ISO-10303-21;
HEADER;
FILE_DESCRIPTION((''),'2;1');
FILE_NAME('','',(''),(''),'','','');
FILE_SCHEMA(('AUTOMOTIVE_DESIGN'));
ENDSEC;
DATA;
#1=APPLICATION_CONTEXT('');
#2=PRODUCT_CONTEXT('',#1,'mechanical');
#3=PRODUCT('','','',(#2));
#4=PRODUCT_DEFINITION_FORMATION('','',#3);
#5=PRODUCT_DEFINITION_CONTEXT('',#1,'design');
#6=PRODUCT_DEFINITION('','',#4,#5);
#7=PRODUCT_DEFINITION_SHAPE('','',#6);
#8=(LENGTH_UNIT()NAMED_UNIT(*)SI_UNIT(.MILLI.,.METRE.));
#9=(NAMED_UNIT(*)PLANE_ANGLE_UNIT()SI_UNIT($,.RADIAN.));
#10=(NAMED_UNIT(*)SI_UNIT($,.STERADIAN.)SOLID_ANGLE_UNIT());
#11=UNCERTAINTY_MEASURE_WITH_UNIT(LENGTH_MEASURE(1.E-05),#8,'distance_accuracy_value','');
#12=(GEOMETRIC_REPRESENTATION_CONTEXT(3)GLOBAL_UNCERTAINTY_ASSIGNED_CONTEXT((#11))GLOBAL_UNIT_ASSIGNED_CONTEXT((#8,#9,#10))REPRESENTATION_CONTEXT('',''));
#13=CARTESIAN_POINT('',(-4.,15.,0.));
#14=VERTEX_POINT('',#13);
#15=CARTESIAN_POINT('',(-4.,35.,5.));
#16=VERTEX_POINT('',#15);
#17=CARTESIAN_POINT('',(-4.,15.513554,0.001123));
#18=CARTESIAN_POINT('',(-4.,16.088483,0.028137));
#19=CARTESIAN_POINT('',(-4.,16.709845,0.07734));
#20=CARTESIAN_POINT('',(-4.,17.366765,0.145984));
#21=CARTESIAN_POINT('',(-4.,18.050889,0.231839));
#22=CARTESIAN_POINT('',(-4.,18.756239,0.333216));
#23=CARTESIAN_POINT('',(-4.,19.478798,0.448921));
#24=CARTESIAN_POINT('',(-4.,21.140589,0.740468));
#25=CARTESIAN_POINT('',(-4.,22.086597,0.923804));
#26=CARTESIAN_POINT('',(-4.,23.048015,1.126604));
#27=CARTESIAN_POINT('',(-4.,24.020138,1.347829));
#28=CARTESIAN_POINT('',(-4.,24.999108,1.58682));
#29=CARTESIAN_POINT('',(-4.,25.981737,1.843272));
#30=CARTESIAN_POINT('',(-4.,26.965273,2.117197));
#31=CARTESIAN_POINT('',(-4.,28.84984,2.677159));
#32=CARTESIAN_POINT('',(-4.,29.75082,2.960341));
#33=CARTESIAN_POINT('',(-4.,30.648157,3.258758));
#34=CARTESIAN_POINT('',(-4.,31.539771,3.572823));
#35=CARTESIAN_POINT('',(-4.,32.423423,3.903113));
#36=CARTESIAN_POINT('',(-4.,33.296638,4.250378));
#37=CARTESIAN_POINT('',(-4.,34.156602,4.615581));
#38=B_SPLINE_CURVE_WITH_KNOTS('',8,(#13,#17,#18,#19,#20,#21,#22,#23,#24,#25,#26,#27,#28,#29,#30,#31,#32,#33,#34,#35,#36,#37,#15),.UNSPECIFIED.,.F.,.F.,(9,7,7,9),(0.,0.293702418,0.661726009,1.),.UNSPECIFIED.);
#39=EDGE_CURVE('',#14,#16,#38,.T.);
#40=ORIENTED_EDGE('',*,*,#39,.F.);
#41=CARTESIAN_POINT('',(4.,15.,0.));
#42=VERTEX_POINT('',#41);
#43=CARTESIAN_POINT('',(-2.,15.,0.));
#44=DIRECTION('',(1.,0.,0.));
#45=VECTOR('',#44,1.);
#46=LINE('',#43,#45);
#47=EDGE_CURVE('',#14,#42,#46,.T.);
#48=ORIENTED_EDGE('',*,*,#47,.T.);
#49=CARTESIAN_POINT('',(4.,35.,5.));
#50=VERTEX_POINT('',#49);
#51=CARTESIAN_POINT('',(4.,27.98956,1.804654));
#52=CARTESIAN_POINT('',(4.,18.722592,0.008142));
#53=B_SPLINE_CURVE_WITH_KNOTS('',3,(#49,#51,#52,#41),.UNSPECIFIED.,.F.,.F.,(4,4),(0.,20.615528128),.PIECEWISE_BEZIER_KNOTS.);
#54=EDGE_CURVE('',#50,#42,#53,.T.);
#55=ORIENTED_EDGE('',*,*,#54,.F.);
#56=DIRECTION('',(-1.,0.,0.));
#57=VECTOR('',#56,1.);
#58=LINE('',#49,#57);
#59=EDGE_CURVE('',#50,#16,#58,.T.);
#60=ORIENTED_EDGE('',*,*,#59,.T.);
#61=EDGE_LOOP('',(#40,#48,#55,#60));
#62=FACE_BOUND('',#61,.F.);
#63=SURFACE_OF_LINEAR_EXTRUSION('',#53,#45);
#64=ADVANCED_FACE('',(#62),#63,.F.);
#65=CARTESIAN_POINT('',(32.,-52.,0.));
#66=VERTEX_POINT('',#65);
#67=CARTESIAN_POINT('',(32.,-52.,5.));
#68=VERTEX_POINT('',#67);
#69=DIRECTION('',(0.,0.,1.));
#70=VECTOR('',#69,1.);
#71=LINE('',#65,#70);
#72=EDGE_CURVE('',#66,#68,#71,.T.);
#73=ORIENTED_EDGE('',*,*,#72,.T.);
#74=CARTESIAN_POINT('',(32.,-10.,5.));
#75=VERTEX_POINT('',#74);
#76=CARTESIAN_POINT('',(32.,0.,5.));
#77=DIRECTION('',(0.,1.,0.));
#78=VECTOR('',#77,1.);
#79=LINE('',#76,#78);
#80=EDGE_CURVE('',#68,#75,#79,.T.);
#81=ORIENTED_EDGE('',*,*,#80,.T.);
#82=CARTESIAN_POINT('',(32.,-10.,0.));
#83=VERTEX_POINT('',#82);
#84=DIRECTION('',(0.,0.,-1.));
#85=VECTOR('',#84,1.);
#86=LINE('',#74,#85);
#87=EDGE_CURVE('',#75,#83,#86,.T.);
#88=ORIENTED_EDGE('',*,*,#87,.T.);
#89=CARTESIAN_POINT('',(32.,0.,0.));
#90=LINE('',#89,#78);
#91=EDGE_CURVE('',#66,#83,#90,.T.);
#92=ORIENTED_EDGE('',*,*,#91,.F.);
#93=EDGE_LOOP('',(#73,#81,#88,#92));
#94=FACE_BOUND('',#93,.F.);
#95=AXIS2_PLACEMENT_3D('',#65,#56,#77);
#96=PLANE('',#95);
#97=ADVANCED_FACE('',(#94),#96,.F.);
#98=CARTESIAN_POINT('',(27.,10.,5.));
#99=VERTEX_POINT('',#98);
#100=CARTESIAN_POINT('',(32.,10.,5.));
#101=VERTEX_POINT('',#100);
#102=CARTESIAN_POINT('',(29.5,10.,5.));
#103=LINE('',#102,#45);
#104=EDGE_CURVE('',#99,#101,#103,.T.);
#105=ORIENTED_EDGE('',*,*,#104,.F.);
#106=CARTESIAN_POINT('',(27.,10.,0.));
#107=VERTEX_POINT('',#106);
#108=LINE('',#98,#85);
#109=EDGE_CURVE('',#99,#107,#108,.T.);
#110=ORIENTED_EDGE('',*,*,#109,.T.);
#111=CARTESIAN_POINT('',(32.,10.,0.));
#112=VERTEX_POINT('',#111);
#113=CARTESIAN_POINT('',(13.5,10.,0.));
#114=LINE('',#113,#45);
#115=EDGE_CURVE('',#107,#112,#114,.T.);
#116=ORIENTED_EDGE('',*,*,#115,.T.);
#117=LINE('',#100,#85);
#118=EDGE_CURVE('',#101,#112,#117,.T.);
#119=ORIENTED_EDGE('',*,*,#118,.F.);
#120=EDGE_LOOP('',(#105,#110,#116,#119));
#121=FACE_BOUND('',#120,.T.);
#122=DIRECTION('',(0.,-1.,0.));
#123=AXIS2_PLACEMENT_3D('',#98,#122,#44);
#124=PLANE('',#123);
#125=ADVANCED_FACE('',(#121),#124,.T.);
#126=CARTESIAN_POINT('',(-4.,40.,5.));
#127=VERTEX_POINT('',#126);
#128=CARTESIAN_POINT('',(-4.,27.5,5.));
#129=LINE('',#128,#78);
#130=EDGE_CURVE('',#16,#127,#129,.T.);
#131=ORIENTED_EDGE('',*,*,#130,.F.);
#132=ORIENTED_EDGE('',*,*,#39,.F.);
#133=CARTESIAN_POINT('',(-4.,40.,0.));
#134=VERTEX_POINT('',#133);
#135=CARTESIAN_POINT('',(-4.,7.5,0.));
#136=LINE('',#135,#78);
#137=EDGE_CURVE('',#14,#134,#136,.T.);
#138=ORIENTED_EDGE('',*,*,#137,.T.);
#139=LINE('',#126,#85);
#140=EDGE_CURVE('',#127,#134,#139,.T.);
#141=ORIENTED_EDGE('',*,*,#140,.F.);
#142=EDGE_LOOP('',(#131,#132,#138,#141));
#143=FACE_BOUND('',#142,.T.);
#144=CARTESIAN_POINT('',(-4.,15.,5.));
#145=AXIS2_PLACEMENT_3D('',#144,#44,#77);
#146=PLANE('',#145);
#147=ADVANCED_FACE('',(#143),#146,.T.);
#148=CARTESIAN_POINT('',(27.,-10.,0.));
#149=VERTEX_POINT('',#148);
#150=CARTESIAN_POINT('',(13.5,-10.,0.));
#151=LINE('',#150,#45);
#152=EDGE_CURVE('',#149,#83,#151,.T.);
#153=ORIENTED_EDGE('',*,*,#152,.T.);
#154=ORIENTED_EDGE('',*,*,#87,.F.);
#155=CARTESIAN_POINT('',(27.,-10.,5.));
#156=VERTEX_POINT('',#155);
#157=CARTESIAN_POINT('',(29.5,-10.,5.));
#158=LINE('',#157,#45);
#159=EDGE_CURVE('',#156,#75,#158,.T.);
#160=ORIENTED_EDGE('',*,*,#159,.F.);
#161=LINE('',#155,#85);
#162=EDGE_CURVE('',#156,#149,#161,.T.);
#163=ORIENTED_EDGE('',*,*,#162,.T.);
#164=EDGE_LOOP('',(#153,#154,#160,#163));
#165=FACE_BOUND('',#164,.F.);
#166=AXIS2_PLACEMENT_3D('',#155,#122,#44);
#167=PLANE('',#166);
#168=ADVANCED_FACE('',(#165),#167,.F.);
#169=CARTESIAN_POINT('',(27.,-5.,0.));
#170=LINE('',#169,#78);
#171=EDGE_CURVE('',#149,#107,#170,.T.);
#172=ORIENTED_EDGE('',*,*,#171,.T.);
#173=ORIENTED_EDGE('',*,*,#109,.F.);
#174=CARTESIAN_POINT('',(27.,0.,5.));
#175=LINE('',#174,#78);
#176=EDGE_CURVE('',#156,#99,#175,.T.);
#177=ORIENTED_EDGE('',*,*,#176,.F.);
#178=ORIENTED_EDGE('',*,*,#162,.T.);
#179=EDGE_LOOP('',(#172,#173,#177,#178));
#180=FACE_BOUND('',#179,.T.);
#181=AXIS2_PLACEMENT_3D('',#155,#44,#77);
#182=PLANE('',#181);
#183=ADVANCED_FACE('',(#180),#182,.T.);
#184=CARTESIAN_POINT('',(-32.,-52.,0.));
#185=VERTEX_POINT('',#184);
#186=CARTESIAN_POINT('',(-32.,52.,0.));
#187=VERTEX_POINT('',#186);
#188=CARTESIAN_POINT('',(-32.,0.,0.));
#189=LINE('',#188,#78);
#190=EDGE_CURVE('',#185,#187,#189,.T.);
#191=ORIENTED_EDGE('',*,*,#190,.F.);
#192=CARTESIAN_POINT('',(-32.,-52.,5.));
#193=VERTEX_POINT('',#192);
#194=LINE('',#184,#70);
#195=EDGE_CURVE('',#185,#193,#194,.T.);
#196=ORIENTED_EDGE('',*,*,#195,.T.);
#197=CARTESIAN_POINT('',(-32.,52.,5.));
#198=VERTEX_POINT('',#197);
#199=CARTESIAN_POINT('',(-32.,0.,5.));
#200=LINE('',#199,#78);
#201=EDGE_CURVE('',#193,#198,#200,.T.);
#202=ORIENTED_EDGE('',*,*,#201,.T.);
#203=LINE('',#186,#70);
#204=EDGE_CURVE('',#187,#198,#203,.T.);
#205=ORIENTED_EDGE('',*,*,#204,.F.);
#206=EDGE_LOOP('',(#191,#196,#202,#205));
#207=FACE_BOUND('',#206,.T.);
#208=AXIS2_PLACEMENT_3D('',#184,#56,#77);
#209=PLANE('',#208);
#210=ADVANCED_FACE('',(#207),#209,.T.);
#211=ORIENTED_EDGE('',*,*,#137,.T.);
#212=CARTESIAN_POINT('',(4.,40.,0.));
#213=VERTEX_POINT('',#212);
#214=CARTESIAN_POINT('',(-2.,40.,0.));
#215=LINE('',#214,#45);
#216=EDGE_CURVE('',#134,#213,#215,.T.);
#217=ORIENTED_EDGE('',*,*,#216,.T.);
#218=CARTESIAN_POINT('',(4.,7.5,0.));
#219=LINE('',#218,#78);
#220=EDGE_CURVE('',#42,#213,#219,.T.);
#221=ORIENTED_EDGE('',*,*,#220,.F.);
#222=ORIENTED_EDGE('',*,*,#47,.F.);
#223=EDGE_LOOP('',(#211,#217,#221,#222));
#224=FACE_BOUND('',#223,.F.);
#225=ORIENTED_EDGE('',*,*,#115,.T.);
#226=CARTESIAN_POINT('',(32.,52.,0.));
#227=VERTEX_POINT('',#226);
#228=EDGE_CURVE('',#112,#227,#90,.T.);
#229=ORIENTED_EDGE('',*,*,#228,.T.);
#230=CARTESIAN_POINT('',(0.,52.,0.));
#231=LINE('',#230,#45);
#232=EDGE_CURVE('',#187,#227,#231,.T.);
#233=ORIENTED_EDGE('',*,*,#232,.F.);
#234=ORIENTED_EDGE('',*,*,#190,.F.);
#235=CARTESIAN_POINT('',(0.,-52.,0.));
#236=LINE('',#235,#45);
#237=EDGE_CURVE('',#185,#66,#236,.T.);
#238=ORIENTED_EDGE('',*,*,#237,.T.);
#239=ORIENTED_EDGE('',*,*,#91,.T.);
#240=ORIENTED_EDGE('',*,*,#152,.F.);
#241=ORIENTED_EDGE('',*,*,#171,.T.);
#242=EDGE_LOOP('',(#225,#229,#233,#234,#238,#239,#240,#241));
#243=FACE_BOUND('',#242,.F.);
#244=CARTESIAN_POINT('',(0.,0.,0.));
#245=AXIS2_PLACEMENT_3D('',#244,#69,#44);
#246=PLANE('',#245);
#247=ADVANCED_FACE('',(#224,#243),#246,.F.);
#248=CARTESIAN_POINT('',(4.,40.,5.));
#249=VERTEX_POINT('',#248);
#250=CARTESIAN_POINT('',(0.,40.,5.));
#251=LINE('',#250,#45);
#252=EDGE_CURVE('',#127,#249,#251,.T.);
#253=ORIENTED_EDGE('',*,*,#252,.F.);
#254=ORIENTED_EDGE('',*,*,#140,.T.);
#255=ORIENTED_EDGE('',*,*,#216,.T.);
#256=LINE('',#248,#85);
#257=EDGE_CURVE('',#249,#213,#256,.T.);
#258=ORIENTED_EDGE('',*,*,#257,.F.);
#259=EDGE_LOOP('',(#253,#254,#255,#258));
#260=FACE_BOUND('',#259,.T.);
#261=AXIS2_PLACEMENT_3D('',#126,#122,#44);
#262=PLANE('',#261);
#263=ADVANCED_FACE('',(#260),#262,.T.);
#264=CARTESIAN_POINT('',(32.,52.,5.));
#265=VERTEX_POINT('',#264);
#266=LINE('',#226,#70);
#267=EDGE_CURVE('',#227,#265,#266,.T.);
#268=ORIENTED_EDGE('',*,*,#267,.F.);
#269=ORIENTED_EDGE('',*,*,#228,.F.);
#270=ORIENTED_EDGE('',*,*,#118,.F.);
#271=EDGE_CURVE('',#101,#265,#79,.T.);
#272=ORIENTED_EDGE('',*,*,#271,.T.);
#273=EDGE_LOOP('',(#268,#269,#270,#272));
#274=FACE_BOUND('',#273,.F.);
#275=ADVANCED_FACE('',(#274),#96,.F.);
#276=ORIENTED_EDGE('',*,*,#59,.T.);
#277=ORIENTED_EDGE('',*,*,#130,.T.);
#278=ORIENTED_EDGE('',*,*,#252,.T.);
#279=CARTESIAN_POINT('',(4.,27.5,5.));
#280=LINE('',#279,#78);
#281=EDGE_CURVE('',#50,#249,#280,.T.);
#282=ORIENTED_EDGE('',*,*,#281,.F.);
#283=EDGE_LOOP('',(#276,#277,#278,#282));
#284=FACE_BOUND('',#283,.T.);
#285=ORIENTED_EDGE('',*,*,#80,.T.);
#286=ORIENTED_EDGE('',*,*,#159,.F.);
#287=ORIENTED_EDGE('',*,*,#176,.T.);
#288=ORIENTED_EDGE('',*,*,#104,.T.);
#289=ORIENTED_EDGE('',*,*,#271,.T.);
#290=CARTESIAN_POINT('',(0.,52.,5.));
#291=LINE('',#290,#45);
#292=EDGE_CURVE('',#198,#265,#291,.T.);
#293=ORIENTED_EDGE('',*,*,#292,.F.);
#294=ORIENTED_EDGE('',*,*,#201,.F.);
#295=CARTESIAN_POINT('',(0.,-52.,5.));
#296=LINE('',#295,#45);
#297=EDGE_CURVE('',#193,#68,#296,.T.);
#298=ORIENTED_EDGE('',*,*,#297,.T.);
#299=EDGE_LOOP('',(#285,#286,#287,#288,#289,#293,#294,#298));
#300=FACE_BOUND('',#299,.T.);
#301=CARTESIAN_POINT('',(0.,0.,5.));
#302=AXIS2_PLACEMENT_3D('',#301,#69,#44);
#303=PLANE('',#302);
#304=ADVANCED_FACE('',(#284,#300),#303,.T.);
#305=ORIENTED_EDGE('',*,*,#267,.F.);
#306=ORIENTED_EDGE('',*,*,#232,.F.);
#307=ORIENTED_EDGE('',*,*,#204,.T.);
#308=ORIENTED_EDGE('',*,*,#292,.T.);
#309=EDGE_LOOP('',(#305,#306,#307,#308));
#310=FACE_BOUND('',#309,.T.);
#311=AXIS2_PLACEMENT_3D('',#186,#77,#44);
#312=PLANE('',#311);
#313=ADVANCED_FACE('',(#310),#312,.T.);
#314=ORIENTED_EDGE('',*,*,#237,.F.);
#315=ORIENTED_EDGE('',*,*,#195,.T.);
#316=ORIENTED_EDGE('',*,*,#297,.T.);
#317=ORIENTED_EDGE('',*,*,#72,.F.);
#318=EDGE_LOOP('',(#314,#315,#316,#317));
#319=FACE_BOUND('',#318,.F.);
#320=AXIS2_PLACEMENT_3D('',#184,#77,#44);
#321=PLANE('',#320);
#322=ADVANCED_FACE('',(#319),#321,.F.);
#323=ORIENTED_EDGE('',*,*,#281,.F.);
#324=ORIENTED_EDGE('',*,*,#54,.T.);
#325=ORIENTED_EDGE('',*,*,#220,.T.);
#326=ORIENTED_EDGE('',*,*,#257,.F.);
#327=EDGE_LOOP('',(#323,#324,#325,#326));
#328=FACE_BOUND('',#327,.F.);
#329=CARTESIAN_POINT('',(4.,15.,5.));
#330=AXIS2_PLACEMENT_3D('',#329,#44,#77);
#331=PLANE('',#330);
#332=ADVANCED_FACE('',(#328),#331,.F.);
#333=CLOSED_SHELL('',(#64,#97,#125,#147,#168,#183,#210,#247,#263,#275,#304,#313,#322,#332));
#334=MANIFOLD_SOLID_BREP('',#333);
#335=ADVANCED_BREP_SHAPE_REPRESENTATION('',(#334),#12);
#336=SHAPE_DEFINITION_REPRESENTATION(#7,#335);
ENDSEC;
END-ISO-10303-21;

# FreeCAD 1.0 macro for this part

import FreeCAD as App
import Part
import Sketcher

V = App.Vector
Q = App.Units.Quantity


def add_polygon(sketch, points):
    """Adds a closed chain of lines whose ends are joined by coincident constraints."""
    first, n = sketch.GeometryCount, len(points)
    for a, b in zip(points, points[1:] + points[:1]):
        sketch.addGeometry(Part.LineSegment(App.Vector(*a, 0), App.Vector(*b, 0)), False)
    for i in range(n):
        sketch.addConstraint(Sketcher.Constraint("Coincident", first + i, 2, first + (i + 1) % n, 1))

doc = App.newDocument("Part")
body = doc.addObject("PartDesign::Body", "Body")

# Sketch on XY plane
sketch1 = doc.addObject("Sketcher::SketchObject", "Sketch")
body.addObject(sketch1)
sketch1.AttachmentSupport = (doc.XY_Plane, [""])
sketch1.MapMode = "FlatFace"
add_polygon(sketch1, [(-32, 52), (-32, -52), (32, -52), (32, 52)])  # lines 0-3
sketch1.addConstraint(Sketcher.Constraint("Vertical", 0))
sketch1.addConstraint(Sketcher.Constraint("Horizontal", 1))
sketch1.addConstraint(Sketcher.Constraint("Vertical", 2))
sketch1.addConstraint(Sketcher.Constraint("Horizontal", 3))
sketch1.addConstraint(Sketcher.Constraint("Symmetric", 0, 2, 2, 2, -1, 1))
sketch1.addConstraint(Sketcher.Constraint("DistanceX", 1, 1, 1, 2, Q("64 mm")))
sketch1.addConstraint(Sketcher.Constraint("DistanceY", 0, 2, 0, 1, Q("104 mm")))
pad1 = doc.addObject("PartDesign::Pad", "Pad")
body.addObject(pad1)
pad1.Profile = sketch1
pad1.Length = 5

# Sketch on XY plane
sketch2 = doc.addObject("Sketcher::SketchObject", "Sketch001")
body.addObject(sketch2)
sketch2.AttachmentSupport = (doc.XY_Plane, [""])
sketch2.MapMode = "FlatFace"
sketch2.AttachmentOffset = App.Placement(V(0, 0, 5), App.Rotation())
add_polygon(sketch2, [(27, 10), (27, -10), (32, -10), (32, 10)])  # lines 0-3
sketch2.addConstraint(Sketcher.Constraint("Vertical", 0))
sketch2.addConstraint(Sketcher.Constraint("Horizontal", 1))
sketch2.addConstraint(Sketcher.Constraint("Vertical", 2))
sketch2.addConstraint(Sketcher.Constraint("Horizontal", 3))
sketch2.addConstraint(Sketcher.Constraint("DistanceX", 1, 1, 1, 2, Q("5 mm")))
sketch2.addConstraint(Sketcher.Constraint("DistanceY", 0, 2, 0, 1, Q("20 mm")))
sketch2.addConstraint(Sketcher.Constraint("DistanceX", -1, 1, 0, 2, Q("27 mm")))
sketch2.addConstraint(Sketcher.Constraint("DistanceY", 0, 2, -1, 1, Q("10 mm")))
pocket1 = doc.addObject("PartDesign::Pocket", "Pocket")
body.addObject(pocket1)
pocket1.Profile = sketch2
pocket1.Length = 25

# Sketch on XY plane
sketch3 = doc.addObject("Sketcher::SketchObject", "Sketch002")
body.addObject(sketch3)
sketch3.AttachmentSupport = (doc.XY_Plane, [""])
sketch3.MapMode = "FlatFace"
sketch3.AttachmentOffset = App.Placement(V(0, 0, 5), App.Rotation())
add_polygon(sketch3, [(-4, 40), (-4, 15), (4, 15), (4, 40)])  # lines 0-3
sketch3.addConstraint(Sketcher.Constraint("Vertical", 0))
sketch3.addConstraint(Sketcher.Constraint("Horizontal", 1))
sketch3.addConstraint(Sketcher.Constraint("Vertical", 2))
sketch3.addConstraint(Sketcher.Constraint("Horizontal", 3))
sketch3.addConstraint(Sketcher.Constraint("DistanceX", 1, 1, 1, 2, Q("8 mm")))
sketch3.addConstraint(Sketcher.Constraint("DistanceY", 0, 2, 0, 1, Q("25 mm")))
sketch3.addConstraint(Sketcher.Constraint("DistanceX", 0, 2, -1, 1, Q("4 mm")))
sketch3.addConstraint(Sketcher.Constraint("DistanceY", -1, 1, 0, 2, Q("15 mm")))
pocket2 = doc.addObject("PartDesign::Pocket", "Pocket001")
body.addObject(pocket2)
pocket2.Profile = sketch3
pocket2.Length = 25

# Sketch on YZ plane
sketch4 = doc.addObject("Sketcher::SketchObject", "Sketch003")
body.addObject(sketch4)
sketch4.AttachmentSupport = (doc.YZ_Plane, [""])
sketch4.MapMode = "FlatFace"
sketch4.AttachmentOffset = App.Placement(V(0, 0, 4), App.Rotation())
sketch4.addGeometry(Part.LineSegment(V(15, 5, 0), V(35, 5, 0)), False)
sketch4.addGeometry(Part.BSplineCurve([V(35, 5, 0), V(27.98956, 1.804654, 0), V(18.722592, 0.008142, 0), V(15, 0, 0)], [4, 4], [0, 20.615528128], False, 3, [1, 1, 1, 1], False), False)
sketch4.addGeometry(Part.LineSegment(V(15, 0, 0), V(15, 5, 0)), False)
sketch4.addConstraint(Sketcher.Constraint("Block", 1))
sketch4.addConstraint(Sketcher.Constraint("Coincident", 0, 2, 1, 1))
sketch4.addConstraint(Sketcher.Constraint("Coincident", 1, 2, 2, 1))
sketch4.addConstraint(Sketcher.Constraint("Coincident", 2, 2, 0, 1))
sketch4.addConstraint(Sketcher.Constraint("Horizontal", 0))
sketch4.addConstraint(Sketcher.Constraint("Vertical", 2))
pad2 = doc.addObject("PartDesign::Pad", "Pad001")
body.addObject(pad2)
pad2.Profile = sketch4
pad2.Length = 25
pad2.Reversed = True

doc.recompute()
